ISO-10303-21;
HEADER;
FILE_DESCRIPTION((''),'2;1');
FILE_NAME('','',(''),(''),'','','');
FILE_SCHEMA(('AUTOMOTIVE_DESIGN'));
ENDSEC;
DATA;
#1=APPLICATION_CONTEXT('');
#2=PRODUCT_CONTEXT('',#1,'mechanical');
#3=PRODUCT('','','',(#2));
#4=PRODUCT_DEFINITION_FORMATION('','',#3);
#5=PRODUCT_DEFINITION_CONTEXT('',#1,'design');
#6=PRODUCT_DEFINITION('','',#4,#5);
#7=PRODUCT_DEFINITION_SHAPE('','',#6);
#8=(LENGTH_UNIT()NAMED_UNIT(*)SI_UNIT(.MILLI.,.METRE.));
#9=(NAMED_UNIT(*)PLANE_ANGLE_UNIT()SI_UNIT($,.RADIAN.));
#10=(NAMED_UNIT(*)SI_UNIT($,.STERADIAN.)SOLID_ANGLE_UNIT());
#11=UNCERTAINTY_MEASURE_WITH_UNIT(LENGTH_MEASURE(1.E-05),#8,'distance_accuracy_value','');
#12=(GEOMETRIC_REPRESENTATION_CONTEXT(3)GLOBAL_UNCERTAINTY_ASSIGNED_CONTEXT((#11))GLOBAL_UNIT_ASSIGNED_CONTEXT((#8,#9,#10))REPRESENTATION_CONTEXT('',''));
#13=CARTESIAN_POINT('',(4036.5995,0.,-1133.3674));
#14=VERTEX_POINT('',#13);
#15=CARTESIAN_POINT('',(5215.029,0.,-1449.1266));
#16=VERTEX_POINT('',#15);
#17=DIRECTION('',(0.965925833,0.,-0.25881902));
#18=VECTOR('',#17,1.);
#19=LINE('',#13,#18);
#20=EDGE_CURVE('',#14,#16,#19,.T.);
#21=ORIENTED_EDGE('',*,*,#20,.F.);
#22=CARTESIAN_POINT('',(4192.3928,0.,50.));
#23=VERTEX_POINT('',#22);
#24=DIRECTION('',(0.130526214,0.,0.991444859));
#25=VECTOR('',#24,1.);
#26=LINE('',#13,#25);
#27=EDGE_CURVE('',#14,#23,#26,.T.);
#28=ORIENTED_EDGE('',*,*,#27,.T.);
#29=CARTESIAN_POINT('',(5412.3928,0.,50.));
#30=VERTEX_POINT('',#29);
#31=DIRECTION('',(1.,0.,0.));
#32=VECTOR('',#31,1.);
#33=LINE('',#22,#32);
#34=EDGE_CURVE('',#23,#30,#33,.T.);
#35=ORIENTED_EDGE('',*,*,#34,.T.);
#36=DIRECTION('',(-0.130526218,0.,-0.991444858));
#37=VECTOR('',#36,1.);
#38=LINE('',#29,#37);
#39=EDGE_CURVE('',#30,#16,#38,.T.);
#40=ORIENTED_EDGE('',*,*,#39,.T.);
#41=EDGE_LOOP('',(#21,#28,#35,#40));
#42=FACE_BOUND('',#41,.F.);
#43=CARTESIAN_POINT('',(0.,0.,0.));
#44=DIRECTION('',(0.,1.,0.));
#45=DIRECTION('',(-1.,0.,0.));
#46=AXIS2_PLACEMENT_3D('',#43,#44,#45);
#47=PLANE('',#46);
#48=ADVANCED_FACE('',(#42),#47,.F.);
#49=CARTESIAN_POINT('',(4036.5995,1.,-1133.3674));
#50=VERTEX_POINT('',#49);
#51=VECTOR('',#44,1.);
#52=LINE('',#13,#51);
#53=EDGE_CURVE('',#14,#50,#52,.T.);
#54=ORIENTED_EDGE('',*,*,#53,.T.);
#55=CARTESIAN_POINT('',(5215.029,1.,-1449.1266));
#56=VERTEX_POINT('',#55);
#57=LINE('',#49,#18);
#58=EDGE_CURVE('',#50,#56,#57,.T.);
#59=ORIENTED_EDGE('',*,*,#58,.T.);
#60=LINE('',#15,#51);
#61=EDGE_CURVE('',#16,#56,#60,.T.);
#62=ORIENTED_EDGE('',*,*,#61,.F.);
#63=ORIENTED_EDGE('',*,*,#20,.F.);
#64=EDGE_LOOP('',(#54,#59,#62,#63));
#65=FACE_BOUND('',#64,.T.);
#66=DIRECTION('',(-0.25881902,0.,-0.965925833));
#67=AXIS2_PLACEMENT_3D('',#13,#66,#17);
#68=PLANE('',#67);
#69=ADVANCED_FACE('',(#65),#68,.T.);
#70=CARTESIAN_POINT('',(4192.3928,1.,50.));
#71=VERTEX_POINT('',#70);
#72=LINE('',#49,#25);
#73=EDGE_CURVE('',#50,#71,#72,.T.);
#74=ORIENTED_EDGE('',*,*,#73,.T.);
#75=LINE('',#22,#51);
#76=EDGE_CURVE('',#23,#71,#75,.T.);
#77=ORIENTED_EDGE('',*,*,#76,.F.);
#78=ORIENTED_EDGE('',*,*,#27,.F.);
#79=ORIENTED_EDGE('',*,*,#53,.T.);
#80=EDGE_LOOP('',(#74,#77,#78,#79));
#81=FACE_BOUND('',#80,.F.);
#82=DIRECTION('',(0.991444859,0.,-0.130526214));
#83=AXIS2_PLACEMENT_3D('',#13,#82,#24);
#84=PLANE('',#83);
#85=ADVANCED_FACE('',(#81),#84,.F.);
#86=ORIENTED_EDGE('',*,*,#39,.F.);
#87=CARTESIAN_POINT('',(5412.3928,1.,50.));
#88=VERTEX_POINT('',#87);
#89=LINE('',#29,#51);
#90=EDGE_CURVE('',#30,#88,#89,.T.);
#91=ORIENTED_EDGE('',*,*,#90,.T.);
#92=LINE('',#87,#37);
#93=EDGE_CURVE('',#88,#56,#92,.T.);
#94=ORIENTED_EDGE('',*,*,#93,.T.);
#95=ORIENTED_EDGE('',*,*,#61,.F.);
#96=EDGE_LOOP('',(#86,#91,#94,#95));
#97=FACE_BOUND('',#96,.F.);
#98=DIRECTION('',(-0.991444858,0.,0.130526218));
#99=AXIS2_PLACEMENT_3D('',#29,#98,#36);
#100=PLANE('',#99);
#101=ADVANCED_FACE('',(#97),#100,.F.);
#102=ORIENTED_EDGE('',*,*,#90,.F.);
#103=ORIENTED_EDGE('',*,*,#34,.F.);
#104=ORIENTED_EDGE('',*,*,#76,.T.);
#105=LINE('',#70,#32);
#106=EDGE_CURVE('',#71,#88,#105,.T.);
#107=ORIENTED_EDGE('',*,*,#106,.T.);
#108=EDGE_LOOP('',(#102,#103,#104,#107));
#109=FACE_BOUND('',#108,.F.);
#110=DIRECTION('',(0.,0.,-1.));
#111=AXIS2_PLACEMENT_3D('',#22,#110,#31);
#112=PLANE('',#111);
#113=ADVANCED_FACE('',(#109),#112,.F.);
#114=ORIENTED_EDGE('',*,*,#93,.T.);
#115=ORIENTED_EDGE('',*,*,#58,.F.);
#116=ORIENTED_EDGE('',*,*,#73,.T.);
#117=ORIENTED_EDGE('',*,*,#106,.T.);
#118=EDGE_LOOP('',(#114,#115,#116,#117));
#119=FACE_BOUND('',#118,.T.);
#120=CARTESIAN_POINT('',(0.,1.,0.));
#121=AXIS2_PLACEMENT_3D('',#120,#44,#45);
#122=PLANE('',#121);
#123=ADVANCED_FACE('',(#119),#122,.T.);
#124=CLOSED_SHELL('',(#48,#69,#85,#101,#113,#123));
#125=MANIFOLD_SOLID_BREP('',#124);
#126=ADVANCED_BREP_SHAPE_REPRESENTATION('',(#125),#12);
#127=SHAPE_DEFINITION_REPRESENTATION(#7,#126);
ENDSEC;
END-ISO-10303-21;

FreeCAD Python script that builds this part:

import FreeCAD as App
import Part
import Sketcher

V = App.Vector
Q = App.Units.Quantity


def add_polygon(sketch, points):
    """Adds a closed chain of lines whose ends are joined by coincident constraints."""
    first, n = sketch.GeometryCount, len(points)
    for a, b in zip(points, points[1:] + points[:1]):
        sketch.addGeometry(Part.LineSegment(App.Vector(*a, 0), App.Vector(*b, 0)), False)
    for i in range(n):
        sketch.addConstraint(Sketcher.Constraint("Coincident", first + i, 2, first + (i + 1) % n, 1))

doc = App.newDocument("Part")
body = doc.addObject("PartDesign::Body", "Body")

# Sketch on XZ plane
sketch1 = body.newObject("Sketcher::SketchObject", "Sketch")
sketch1.AttachmentSupport = (doc.getObject("XZ_Plane"), [""])
sketch1.MapMode = "FlatFace"
add_polygon(sketch1, [(4037, -1133), (4192, 50), (5412, 50), (5215, -1449)])  # lines 0-3
sketch1.addConstraint([
    Sketcher.Constraint("Horizontal", 1),
    Sketcher.Constraint("Parallel", 0, 2),
    Sketcher.Constraint("DistanceX", 1, 1, 1, 2, 1220.0),
    Sketcher.Constraint("Angle", 3, Q("165 deg")),
    Sketcher.Constraint("Distance", 3, 1220.0),
    Sketcher.Constraint("DistanceY", -1, 1, 0, 2, 50.0),
    Sketcher.Constraint("DistanceX", -1, 1, 2, 2, 5215.029),
    Sketcher.Constraint("Distance", 0, 1193.5786),
])
pad1 = body.newObject("PartDesign::Pad", "Pad")
pad1.Profile = sketch1
pad1.Length = 1
pad1.Reversed = True

doc.recompute()
